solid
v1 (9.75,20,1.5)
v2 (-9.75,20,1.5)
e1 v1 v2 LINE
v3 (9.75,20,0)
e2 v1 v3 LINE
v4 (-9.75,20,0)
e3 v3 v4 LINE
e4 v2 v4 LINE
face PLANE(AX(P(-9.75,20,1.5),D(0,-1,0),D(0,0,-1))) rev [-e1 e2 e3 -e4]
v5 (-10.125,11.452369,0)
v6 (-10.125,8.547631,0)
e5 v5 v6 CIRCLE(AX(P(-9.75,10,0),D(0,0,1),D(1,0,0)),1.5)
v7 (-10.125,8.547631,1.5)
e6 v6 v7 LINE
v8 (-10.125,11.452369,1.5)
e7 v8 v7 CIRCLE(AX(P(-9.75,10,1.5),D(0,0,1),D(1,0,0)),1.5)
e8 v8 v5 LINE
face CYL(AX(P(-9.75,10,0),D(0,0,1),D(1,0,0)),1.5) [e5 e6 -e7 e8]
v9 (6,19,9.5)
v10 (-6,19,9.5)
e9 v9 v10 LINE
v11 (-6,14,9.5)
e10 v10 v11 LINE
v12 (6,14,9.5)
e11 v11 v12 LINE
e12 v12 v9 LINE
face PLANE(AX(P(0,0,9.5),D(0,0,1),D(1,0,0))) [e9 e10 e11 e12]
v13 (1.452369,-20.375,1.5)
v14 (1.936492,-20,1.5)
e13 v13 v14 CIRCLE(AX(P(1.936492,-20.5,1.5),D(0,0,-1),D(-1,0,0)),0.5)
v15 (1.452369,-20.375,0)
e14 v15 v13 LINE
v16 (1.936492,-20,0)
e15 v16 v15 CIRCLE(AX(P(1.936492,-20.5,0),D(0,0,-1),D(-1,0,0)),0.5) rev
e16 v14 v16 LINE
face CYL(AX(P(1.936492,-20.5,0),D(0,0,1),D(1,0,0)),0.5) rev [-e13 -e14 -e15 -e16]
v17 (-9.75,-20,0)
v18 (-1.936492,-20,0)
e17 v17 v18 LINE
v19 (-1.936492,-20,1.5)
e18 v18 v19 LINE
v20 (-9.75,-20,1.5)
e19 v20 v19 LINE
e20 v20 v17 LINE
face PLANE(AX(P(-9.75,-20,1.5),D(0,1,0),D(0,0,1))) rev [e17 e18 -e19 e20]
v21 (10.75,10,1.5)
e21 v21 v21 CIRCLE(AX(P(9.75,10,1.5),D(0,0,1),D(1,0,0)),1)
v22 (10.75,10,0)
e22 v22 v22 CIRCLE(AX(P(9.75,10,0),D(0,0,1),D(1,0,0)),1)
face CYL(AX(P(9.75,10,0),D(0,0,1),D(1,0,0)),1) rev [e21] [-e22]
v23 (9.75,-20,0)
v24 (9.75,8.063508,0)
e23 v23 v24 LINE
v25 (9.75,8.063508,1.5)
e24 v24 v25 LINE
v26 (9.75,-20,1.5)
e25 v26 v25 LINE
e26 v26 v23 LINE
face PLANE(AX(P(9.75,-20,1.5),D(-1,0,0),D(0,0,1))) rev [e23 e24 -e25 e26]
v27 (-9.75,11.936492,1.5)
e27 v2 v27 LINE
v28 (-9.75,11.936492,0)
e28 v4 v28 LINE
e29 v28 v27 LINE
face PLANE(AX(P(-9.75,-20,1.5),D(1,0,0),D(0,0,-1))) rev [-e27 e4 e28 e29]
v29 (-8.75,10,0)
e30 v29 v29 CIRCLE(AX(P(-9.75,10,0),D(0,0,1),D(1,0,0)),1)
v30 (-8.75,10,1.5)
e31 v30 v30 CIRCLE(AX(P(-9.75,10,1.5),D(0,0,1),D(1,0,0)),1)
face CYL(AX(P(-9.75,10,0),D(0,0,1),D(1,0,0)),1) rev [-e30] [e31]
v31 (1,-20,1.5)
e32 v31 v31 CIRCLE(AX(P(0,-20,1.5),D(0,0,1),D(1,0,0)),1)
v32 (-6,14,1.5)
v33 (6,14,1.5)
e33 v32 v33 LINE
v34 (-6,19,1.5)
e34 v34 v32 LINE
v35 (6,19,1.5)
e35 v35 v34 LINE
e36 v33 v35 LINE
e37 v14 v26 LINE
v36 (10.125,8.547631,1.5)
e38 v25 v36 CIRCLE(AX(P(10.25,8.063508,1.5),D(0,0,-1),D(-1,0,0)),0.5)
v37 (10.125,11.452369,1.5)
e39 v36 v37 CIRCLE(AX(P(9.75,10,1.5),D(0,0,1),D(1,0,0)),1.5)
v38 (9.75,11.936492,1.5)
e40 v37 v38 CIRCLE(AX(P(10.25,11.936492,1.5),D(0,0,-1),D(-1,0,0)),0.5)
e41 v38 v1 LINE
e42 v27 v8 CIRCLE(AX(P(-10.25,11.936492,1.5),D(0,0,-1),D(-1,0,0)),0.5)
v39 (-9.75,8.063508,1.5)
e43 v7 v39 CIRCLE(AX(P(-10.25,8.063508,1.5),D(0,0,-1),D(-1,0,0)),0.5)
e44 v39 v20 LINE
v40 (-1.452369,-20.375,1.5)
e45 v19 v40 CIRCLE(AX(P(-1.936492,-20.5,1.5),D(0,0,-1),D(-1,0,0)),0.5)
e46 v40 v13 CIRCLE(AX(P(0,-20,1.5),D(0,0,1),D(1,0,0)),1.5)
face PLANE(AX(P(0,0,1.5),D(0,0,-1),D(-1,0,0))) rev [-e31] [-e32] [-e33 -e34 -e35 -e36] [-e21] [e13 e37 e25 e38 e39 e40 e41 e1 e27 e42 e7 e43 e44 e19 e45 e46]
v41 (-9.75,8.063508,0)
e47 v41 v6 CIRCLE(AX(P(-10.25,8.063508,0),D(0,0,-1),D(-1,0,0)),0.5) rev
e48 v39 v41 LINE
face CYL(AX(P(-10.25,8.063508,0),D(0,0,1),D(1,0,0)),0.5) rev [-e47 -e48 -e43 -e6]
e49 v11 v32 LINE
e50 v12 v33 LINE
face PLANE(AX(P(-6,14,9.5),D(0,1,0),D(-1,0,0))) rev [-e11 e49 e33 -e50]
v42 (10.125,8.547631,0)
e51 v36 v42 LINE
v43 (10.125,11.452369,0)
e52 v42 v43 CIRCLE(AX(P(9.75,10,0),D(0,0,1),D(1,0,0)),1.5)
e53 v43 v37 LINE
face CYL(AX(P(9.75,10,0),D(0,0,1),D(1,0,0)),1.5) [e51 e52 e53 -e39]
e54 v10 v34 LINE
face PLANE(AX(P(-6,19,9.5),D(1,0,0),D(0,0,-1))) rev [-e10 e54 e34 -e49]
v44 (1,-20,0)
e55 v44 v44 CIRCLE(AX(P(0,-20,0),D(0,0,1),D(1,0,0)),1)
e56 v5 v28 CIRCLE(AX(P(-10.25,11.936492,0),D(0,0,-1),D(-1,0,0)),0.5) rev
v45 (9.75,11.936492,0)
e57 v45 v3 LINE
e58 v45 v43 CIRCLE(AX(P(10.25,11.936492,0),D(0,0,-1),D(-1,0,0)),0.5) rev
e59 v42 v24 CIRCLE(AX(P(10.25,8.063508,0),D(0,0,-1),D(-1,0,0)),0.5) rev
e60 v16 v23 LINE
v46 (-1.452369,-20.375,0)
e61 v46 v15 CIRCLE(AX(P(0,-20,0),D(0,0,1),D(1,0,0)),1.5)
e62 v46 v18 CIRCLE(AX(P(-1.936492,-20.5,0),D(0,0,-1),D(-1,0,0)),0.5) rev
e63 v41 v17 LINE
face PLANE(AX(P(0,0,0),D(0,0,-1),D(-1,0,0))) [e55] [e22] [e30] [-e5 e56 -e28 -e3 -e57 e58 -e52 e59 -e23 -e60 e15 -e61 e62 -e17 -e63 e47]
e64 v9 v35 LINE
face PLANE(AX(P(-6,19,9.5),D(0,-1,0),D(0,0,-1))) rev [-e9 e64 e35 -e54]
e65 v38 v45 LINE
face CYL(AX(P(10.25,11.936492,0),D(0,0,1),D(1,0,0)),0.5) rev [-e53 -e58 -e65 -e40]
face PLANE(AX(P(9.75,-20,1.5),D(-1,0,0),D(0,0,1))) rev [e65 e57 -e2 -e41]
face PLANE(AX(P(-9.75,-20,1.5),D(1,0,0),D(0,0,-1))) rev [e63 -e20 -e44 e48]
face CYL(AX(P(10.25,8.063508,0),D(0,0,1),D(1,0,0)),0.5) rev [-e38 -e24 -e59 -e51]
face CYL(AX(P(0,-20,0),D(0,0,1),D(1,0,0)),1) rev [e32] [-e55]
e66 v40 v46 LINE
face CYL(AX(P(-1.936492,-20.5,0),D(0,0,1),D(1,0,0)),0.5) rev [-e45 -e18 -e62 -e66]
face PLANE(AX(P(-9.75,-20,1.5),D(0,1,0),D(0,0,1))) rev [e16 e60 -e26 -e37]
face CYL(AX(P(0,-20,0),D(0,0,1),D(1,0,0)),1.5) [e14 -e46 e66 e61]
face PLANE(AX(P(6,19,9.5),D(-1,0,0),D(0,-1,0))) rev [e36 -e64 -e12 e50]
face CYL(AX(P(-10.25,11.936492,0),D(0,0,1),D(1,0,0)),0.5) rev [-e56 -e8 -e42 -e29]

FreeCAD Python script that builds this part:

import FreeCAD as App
import Part
import Sketcher

V = App.Vector
Q = App.Units.Quantity


def edges_at(feature, points):
    """Names of the edges that pass closest to the given points."""
    edges = feature.Shape.Edges
    near = lambda p: min(range(len(edges)), key=lambda i: edges[i].distToShape(Part.Vertex(*p))[0])
    return sorted({f"Edge{near(p) + 1}" for p in points})

doc = App.newDocument("Part")
body = doc.addObject("PartDesign::Body", "Body")

# Sketch on XY plane
sketch1 = doc.addObject("Sketcher::SketchObject", "Sketch")
body.addObject(sketch1)
sketch1.AttachmentSupport = (doc.XY_Plane, [""])
sketch1.MapMode = "FlatFace"
sketch1.addGeometry([
    Part.LineSegment(V(-10, 20, 0), V(-10, -20, 0)),
    Part.LineSegment(V(-10, -20, 0), V(10, -20, 0)),
    Part.LineSegment(V(10, -20, 0), V(10, 20, 0)),
    Part.LineSegment(V(10, 20, 0), V(-10, 20, 0)),
], False)
sketch1.addConstraint([
    Sketcher.Constraint("Coincident", 0, 2, 1, 1),
    Sketcher.Constraint("Coincident", 1, 2, 2, 1),
    Sketcher.Constraint("Coincident", 2, 2, 3, 1),
    Sketcher.Constraint("Coincident", 3, 2, 0, 1),
    Sketcher.Constraint("Vertical", 0),
    Sketcher.Constraint("Horizontal", 1),
    Sketcher.Constraint("Vertical", 2),
    Sketcher.Constraint("Horizontal", 3),
    Sketcher.Constraint("Symmetric", 0, 2, 2, 2, -1, 1),
    Sketcher.Constraint("DistanceY", 0, 2, 0, 1, Q("40 mm")),
    Sketcher.Constraint("DistanceX", 1, 1, 1, 2, Q("19.5 mm")),
])
pad1 = doc.addObject("PartDesign::Pad", "Pad")
body.addObject(pad1)
pad1.Profile = sketch1
pad1.Length = 1.5

# Sketch on XY plane
sketch2 = doc.addObject("Sketcher::SketchObject", "Sketch001")
body.addObject(sketch2)
sketch2.AttachmentSupport = (doc.XY_Plane, [""])
sketch2.MapMode = "FlatFace"
sketch2.AttachmentOffset = App.Placement(V(0, 0, 1.5), App.Rotation())
sketch2.addGeometry([
    Part.Circle(V(9.8, 10, 0), V(0, 0, 1), 1.5),
    Part.Circle(V(-9.8, 10, 0), V(0, 0, 1), 1.5),
    Part.Circle(V(0, -20, 0), V(0, 0, 1), 1.5),
], False)
sketch2.addConstraint([
    Sketcher.Constraint("Equal", 0, 1),
    Sketcher.Constraint("Equal", 1, 2),
    Sketcher.Constraint("Symmetric", 0, 3, 1, 3, -2),
    Sketcher.Constraint("PointOnObject", 2, 3, -2),
    Sketcher.Constraint("Diameter", 0, Q("3 mm")),
    Sketcher.Constraint("DistanceY", -1, 1, 0, 3, Q("10 mm")),
    Sketcher.Constraint("DistanceY", 2, 3, -1, 1, Q("20 mm")),
    Sketcher.Constraint("DistanceX", 1, 3, 0, 3, Q("19.5 mm")),
])
pad2 = doc.addObject("PartDesign::Pad", "Pad001")
body.addObject(pad2)
pad2.Profile = sketch2
pad2.Length = 1.5
pad2.Reversed = True

# Sketch on XY plane
sketch3 = doc.addObject("Sketcher::SketchObject", "Sketch002")
body.addObject(sketch3)
sketch3.AttachmentSupport = (doc.XY_Plane, [""])
sketch3.MapMode = "FlatFace"
sketch3.AttachmentOffset = App.Placement(V(0, 0, 1.5), App.Rotation())
sketch3.addGeometry([
    Part.Circle(V(-9.8, 10, 0), V(0, 0, 1), 1),
    Part.Circle(V(9.8, 10, 0), V(0, 0, 1), 1),
    Part.Circle(V(0, -20, 0), V(0, 0, 1), 1),
], False)
sketch3.addConstraint([
    Sketcher.Constraint("Equal", 0, 1),
    Sketcher.Constraint("Equal", 1, 2),
    Sketcher.Constraint("Symmetric", 0, 3, 1, 3, -2),
    Sketcher.Constraint("PointOnObject", 2, 3, -2),
    Sketcher.Constraint("Diameter", 0, Q("2 mm")),
    Sketcher.Constraint("DistanceY", -1, 1, 0, 3, Q("10 mm")),
    Sketcher.Constraint("DistanceY", 2, 3, -1, 1, Q("20 mm")),
    Sketcher.Constraint("DistanceX", 0, 3, 1, 3, Q("19.5 mm")),
])
pocket1 = doc.addObject("PartDesign::Pocket", "Pocket")
body.addObject(pocket1)
pocket1.Profile = sketch3
pocket1.Length = 1.5
doc.recompute()

fillet = doc.addObject("PartDesign::Fillet", "Fillet")
body.addObject(fillet)
fillet.Base = (pocket1, edges_at(pocket1, [
    (9.75, 8.5, 0.75),
    (9.75, 11.5, 0.75),
    (-9.75, 11.5, 0.75),
    (-9.75, 8.5, 0.75),
    (-1.5, -20, 0.75),
    (1.5, -20, 0.75),
]))
fillet.Radius = 0.5

# Sketch on XY plane
sketch4 = doc.addObject("Sketcher::SketchObject", "Sketch003")
body.addObject(sketch4)
sketch4.AttachmentSupport = (doc.XY_Plane, [""])
sketch4.MapMode = "FlatFace"
sketch4.AttachmentOffset = App.Placement(V(0, 0, 1.5), App.Rotation())
sketch4.addGeometry([
    Part.LineSegment(V(-6, 19, 0), V(-6, 14, 0)),
    Part.LineSegment(V(-6, 14, 0), V(6, 14, 0)),
    Part.LineSegment(V(6, 14, 0), V(6, 19, 0)),
    Part.LineSegment(V(6, 19, 0), V(-6, 19, 0)),
], False)
sketch4.addConstraint([
    Sketcher.Constraint("Coincident", 0, 2, 1, 1),
    Sketcher.Constraint("Coincident", 1, 2, 2, 1),
    Sketcher.Constraint("Coincident", 2, 2, 3, 1),
    Sketcher.Constraint("Coincident", 3, 2, 0, 1),
    Sketcher.Constraint("Vertical", 0),
    Sketcher.Constraint("Horizontal", 1),
    Sketcher.Constraint("Vertical", 2),
    Sketcher.Constraint("Horizontal", 3),
    Sketcher.Constraint("DistanceX", 1, 1, 1, 2, Q("12 mm")),
    Sketcher.Constraint("DistanceY", 0, 2, 0, 1, Q("5 mm")),
    Sketcher.Constraint("DistanceX", 0, 2, -1, 1, Q("6 mm")),
    Sketcher.Constraint("DistanceY", -1, 1, 0, 2, Q("14 mm")),
])
pad3 = doc.addObject("PartDesign::Pad", "Pad002")
body.addObject(pad3)
pad3.Profile = sketch4
pad3.Length = 8

doc.recompute()
